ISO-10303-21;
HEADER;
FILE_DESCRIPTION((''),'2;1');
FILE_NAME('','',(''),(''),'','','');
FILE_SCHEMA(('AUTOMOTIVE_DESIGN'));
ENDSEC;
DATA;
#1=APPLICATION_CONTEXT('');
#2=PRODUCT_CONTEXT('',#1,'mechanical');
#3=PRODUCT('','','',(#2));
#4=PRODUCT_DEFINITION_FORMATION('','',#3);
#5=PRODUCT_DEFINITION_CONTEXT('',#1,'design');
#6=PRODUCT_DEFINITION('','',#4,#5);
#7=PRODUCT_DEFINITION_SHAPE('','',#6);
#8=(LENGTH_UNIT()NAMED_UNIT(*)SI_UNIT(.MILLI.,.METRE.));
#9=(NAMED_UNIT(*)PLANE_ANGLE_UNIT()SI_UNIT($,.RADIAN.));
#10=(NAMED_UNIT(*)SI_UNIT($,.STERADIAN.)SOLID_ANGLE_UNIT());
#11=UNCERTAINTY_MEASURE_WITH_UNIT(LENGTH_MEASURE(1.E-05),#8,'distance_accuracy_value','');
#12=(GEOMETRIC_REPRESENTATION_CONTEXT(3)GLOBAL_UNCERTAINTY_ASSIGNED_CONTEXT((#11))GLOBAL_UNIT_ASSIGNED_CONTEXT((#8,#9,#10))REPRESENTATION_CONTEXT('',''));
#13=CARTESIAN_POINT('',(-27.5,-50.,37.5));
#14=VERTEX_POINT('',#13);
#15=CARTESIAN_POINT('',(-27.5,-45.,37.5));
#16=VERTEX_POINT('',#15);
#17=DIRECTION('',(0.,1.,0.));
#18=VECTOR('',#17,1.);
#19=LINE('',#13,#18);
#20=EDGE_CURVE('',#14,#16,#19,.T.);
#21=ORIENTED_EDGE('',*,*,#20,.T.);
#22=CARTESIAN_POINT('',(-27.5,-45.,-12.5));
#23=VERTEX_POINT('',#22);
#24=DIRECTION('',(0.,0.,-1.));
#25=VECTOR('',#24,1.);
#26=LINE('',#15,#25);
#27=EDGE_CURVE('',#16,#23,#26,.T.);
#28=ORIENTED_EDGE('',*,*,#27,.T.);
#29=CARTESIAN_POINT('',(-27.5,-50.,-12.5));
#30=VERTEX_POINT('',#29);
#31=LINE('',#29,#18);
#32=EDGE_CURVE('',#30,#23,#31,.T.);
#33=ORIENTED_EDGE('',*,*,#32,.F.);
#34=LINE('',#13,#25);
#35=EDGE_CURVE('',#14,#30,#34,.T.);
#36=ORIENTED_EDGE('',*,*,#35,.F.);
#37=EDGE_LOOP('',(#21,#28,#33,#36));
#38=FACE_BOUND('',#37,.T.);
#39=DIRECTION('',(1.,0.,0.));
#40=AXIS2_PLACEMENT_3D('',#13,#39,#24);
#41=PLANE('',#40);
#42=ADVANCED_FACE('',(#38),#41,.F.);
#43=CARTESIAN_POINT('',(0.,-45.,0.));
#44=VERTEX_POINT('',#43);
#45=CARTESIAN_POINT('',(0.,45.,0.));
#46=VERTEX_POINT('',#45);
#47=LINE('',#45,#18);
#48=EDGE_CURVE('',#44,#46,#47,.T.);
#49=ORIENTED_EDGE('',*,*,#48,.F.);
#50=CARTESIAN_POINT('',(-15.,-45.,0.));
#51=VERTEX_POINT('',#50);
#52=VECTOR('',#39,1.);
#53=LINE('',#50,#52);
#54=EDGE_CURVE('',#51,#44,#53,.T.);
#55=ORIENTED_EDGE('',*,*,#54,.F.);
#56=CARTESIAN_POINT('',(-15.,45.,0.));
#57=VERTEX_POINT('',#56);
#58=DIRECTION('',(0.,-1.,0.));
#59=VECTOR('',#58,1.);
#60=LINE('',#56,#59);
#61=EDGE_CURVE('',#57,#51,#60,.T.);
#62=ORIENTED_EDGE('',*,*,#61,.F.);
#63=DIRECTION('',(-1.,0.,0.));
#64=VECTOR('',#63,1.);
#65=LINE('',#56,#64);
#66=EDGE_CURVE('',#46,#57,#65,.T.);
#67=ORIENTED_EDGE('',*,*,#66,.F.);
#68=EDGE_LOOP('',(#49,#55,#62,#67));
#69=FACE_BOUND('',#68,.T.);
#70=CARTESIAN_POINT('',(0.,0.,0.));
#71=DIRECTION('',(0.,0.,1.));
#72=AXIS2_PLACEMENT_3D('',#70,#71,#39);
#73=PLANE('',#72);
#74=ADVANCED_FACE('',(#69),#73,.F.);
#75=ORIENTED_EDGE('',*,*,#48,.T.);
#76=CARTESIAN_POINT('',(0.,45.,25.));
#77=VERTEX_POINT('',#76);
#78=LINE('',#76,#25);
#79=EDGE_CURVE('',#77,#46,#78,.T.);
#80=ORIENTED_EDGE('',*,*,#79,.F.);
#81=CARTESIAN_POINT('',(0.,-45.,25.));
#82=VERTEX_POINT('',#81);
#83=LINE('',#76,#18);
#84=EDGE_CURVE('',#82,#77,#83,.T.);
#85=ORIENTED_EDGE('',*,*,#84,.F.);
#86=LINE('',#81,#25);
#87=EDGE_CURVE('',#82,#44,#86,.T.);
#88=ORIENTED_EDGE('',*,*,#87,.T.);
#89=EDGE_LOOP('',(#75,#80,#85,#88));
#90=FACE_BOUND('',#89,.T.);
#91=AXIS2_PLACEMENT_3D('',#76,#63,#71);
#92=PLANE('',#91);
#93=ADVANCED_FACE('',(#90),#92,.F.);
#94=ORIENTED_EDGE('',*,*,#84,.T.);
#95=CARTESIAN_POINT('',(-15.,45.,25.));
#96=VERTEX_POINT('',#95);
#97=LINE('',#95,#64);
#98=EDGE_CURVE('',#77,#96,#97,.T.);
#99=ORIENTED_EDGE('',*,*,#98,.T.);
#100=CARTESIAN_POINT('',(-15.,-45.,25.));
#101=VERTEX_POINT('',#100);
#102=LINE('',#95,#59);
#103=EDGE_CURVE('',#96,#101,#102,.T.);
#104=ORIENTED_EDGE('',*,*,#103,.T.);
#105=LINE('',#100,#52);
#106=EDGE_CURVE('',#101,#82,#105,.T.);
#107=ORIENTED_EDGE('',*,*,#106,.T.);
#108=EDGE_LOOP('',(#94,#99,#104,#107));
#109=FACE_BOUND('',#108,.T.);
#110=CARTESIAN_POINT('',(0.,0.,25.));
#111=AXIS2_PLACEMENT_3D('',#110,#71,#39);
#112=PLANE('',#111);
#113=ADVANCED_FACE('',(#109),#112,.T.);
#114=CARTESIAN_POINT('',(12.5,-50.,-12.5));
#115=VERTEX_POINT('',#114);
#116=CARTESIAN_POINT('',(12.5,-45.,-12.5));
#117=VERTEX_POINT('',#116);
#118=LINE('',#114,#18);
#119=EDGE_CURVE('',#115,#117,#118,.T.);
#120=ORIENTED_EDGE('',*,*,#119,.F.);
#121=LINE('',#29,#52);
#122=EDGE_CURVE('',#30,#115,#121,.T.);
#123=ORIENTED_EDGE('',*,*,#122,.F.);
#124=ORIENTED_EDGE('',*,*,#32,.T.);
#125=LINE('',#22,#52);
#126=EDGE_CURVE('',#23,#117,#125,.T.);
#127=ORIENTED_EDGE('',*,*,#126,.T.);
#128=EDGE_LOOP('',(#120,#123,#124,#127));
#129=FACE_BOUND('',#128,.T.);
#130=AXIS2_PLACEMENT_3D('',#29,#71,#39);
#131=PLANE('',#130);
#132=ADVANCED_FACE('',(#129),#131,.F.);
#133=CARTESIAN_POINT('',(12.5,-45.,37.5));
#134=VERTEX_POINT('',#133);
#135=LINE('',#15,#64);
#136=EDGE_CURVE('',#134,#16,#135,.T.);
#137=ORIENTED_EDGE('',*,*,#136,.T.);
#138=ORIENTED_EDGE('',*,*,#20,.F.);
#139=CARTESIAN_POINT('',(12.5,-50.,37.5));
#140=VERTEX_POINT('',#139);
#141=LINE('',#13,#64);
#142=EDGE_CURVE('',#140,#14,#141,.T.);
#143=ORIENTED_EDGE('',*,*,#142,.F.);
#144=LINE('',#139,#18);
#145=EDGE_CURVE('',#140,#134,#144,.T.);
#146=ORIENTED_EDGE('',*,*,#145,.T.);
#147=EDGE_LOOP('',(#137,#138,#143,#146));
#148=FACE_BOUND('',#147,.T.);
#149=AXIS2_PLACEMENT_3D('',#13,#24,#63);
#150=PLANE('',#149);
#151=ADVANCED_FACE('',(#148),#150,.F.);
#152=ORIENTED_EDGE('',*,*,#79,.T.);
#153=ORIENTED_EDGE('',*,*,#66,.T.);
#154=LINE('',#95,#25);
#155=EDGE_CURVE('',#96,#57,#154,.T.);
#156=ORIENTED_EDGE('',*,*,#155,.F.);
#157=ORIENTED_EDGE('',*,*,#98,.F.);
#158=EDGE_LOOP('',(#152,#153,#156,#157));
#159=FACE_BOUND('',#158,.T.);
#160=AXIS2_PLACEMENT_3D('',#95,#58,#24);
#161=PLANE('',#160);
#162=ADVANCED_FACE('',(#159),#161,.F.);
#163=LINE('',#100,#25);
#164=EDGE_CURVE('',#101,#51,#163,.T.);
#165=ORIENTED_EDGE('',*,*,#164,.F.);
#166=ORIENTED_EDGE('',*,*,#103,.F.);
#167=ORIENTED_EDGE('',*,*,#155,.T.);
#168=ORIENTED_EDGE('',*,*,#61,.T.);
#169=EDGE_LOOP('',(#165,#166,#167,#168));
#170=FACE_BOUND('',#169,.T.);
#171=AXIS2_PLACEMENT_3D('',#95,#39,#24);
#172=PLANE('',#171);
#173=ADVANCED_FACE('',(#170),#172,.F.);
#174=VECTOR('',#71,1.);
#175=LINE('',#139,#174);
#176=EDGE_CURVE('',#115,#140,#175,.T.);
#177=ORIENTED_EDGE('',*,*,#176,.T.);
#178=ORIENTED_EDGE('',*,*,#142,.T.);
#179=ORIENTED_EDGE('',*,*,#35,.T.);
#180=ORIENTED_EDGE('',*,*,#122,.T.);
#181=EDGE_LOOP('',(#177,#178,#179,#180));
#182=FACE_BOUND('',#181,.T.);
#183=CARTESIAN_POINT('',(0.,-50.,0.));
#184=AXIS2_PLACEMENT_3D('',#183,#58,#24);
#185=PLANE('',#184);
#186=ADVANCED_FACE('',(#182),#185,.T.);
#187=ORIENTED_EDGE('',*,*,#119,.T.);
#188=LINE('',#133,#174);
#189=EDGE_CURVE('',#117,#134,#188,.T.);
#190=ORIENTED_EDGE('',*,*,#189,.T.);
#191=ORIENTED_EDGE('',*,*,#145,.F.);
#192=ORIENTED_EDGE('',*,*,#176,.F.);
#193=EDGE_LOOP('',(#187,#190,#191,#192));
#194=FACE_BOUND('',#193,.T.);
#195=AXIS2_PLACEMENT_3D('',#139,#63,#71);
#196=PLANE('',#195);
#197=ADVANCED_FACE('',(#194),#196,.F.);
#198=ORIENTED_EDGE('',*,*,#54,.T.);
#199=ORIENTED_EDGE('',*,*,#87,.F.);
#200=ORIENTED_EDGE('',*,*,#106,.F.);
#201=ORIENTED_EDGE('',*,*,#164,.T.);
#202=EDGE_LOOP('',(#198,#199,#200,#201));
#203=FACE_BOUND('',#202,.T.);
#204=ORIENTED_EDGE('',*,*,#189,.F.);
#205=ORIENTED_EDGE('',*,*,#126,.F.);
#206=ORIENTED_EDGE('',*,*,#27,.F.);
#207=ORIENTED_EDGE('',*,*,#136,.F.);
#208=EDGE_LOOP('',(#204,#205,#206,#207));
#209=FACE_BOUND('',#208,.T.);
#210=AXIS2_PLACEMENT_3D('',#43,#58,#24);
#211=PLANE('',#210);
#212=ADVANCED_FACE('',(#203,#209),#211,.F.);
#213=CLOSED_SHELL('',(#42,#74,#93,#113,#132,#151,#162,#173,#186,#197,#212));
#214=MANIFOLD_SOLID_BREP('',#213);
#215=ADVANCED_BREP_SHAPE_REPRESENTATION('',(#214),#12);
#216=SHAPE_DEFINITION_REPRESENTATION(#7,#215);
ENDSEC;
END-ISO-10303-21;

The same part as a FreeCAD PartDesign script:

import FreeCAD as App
import Part
import Sketcher
from FreeCAD import Vector
Q = App.Units.Quantity

doc = App.newDocument("Part")
params = doc.addObject("Spreadsheet::Sheet", "Params")
for row, (alias, value) in enumerate([
    ("sketch1_width", "15 mm"),
    ("sketch1_height", "90 mm"),
    ("pad1_length", "25 mm"),
    ("sketch2_width", "40 mm"),
    ("sketch2_height", "50 mm"),
    ("pad2_length", "5 mm"),
], start=1):
    params.set(f"A{row}", alias)
    params.set(f"B{row}", "=" + value)
    params.setAlias(f"B{row}", alias)

body = doc.addObject("PartDesign::Body", "Body")

# Sketch on XY plane
sketch1 = body.newObject("Sketcher::SketchObject", "Sketch")
sketch1.AttachmentSupport = (doc.getObject("XY_Plane"), [""])
sketch1.MapMode = "FlatFace"
sketch1.addGeometry([
    Part.LineSegment(Vector(-15, 45, 0), Vector(-15, -45, 0)),
    Part.LineSegment(Vector(-15, -45, 0), Vector(0, -45, 0)),
    Part.LineSegment(Vector(0, -45, 0), Vector(0, 45, 0)),
    Part.LineSegment(Vector(0, 45, 0), Vector(-15, 45, 0)),
], False)
sketch1.addConstraint([
    Sketcher.Constraint("Coincident", 0, 2, 1, 1),
    Sketcher.Constraint("Coincident", 1, 2, 2, 1),
    Sketcher.Constraint("Coincident", 2, 2, 3, 1),
    Sketcher.Constraint("Coincident", 3, 2, 0, 1),
    Sketcher.Constraint("Vertical", 0),
    Sketcher.Constraint("Horizontal", 1),
    Sketcher.Constraint("Vertical", 2),
    Sketcher.Constraint("Horizontal", 3),
    Sketcher.Constraint("Symmetric", 1, 2, 2, 2, -1, 1),
    Sketcher.Constraint("DistanceX", 1, 1, 1, 2, Q("15 mm")),
    Sketcher.Constraint("DistanceY", 0, 2, 0, 1, Q("90 mm")),
])
sketch1.setExpression("Constraints[9]", "Params.sketch1_width")
sketch1.setExpression("Constraints[10]", "Params.sketch1_height")
pad1 = body.newObject("PartDesign::Pad", "Pad")
pad1.Profile = sketch1
pad1.setExpression("Length", "Params.pad1_length")

# Sketch on XZ plane
sketch2 = body.newObject("Sketcher::SketchObject", "Sketch001")
sketch2.AttachmentSupport = (doc.getObject("XZ_Plane"), [""])
sketch2.MapMode = "FlatFace"
sketch2.AttachmentOffset = App.Placement(Vector(0, 0, 45), App.Rotation())
sketch2.addGeometry([
    Part.LineSegment(Vector(-28, 38, 0), Vector(-28, -12, 0)),
    Part.LineSegment(Vector(-28, -12, 0), Vector(12, -12, 0)),
    Part.LineSegment(Vector(12, -12, 0), Vector(12, 38, 0)),
    Part.LineSegment(Vector(12, 38, 0), Vector(-28, 38, 0)),
], False)
sketch2.addConstraint([
    Sketcher.Constraint("Coincident", 0, 2, 1, 1),
    Sketcher.Constraint("Coincident", 1, 2, 2, 1),
    Sketcher.Constraint("Coincident", 2, 2, 3, 1),
    Sketcher.Constraint("Coincident", 3, 2, 0, 1),
    Sketcher.Constraint("Vertical", 0),
    Sketcher.Constraint("Horizontal", 1),
    Sketcher.Constraint("Vertical", 2),
    Sketcher.Constraint("Horizontal", 3),
    Sketcher.Constraint("DistanceX", 1, 1, 1, 2, Q("40 mm")),
    Sketcher.Constraint("DistanceY", 0, 2, 0, 1, Q("50 mm")),
    Sketcher.Constraint("DistanceX", 0, 2, -1, 1, Q("27.5 mm")),
    Sketcher.Constraint("DistanceY", 0, 2, -1, 1, Q("12.5 mm")),
])
sketch2.setExpression("Constraints[8]", "Params.sketch2_width")
sketch2.setExpression("Constraints[9]", "Params.sketch2_height")
pad2 = body.newObject("PartDesign::Pad", "Pad001")
pad2.Profile = sketch2
pad2.setExpression("Length", "Params.pad2_length")

doc.recompute()
